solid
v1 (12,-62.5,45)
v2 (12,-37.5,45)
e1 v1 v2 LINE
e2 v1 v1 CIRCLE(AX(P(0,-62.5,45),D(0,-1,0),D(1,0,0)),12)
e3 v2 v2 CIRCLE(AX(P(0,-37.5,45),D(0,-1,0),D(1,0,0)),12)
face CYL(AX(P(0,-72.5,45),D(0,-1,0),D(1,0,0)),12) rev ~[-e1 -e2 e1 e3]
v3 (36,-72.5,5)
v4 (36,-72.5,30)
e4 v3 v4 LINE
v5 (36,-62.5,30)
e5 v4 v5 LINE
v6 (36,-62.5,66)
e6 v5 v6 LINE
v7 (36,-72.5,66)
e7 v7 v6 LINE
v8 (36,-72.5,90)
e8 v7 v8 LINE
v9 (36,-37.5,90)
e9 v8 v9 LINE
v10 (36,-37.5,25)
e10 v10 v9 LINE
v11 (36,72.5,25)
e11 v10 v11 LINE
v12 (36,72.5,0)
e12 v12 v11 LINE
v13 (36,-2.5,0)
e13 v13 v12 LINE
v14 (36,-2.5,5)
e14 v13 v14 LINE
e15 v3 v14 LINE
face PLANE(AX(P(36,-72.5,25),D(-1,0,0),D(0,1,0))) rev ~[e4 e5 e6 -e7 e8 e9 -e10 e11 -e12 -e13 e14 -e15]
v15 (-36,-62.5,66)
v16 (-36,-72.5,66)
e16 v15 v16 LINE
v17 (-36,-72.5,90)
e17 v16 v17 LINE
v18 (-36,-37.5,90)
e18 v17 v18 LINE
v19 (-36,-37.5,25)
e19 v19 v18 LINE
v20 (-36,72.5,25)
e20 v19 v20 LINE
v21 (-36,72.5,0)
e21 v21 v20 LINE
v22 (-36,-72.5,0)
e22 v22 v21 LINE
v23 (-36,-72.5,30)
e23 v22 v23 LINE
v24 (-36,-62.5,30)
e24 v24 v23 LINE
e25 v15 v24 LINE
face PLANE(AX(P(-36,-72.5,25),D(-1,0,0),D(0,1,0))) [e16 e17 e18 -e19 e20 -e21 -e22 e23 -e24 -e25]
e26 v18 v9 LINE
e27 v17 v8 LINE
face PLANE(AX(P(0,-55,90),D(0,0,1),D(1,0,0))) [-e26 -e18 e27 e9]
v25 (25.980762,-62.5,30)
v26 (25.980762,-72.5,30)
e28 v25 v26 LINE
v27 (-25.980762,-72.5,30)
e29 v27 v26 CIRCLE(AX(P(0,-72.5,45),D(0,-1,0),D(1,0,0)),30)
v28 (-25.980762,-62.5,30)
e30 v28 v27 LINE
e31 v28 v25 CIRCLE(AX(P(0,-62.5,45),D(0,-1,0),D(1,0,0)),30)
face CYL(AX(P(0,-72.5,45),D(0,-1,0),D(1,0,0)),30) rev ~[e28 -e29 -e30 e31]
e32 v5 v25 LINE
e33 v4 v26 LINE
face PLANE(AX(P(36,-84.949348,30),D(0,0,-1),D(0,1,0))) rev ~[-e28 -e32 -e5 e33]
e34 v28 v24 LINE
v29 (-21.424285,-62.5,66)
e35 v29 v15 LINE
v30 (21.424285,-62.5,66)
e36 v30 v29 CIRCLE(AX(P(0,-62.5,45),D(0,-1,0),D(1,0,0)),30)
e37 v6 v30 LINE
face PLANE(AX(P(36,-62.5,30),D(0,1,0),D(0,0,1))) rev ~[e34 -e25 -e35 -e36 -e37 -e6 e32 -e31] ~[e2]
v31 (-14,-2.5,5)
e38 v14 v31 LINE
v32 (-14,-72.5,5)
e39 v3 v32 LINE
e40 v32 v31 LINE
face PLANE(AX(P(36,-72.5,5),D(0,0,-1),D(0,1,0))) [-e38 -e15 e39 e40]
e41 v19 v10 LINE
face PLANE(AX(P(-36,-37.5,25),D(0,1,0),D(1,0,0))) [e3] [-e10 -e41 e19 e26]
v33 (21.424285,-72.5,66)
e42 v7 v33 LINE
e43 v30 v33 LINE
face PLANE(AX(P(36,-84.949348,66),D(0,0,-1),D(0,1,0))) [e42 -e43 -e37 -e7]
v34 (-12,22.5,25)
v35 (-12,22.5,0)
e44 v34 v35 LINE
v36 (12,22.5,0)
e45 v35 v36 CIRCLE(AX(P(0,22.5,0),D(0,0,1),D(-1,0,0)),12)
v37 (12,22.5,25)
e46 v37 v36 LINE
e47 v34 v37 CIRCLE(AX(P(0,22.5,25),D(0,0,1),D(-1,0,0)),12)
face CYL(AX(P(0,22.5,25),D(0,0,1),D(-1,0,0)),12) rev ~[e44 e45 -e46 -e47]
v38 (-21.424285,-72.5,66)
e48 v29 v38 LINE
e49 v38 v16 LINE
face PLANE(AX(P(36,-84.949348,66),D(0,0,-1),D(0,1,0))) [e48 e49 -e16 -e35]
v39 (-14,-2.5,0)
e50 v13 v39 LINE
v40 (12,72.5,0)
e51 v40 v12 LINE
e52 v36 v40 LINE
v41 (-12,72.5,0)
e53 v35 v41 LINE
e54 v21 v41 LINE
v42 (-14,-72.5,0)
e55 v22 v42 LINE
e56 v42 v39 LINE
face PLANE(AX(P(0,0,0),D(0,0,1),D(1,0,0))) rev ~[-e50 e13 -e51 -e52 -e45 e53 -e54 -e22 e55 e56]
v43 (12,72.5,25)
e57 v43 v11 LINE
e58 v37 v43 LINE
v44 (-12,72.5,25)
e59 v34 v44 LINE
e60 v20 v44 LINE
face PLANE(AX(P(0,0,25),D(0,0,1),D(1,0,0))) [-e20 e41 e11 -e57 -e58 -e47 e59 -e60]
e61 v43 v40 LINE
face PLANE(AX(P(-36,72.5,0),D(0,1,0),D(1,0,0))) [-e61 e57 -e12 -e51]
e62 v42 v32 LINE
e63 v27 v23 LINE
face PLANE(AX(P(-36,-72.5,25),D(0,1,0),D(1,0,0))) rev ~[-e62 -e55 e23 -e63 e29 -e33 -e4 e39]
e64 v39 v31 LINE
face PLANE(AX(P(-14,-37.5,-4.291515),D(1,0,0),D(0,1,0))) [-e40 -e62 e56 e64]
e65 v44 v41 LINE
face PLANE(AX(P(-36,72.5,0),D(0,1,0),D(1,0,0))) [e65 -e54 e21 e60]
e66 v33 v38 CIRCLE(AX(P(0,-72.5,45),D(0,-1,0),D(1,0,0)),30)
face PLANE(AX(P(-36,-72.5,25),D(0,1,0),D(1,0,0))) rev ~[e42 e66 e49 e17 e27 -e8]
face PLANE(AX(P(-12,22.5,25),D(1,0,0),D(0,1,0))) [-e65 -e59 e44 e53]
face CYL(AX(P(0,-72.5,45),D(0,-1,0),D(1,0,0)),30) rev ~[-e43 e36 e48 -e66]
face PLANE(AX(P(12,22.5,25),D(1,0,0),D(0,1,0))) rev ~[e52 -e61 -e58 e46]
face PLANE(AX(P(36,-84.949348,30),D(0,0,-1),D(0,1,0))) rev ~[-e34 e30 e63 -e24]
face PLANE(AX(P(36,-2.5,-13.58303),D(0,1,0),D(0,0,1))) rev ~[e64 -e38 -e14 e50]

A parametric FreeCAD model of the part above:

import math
import FreeCAD as App
import Part
import Sketcher

V = App.Vector
Q = App.Units.Quantity

doc = App.newDocument("Part")
body = doc.addObject("PartDesign::Body", "Body")

# Sketch on XY plane
sketch1 = doc.addObject("Sketcher::SketchObject", "Sketch")
body.addObject(sketch1)
sketch1.AttachmentSupport = (doc.XY_Plane, [""])
sketch1.MapMode = "FlatFace"
sketch1.addGeometry(Part.LineSegment(V(-36, 72, 0), V(-36, -72, 0)), False)
sketch1.addGeometry(Part.LineSegment(V(-36, -72, 0), V(36, -72, 0)), False)
sketch1.addGeometry(Part.LineSegment(V(36, -72, 0), V(36, 72, 0)), False)
sketch1.addGeometry(Part.LineSegment(V(36, 72, 0), V(-36, 72, 0)), False)
sketch1.addConstraint(Sketcher.Constraint("Coincident", 0, 2, 1, 1))
sketch1.addConstraint(Sketcher.Constraint("Coincident", 1, 2, 2, 1))
sketch1.addConstraint(Sketcher.Constraint("Coincident", 2, 2, 3, 1))
sketch1.addConstraint(Sketcher.Constraint("Coincident", 3, 2, 0, 1))
sketch1.addConstraint(Sketcher.Constraint("Vertical", 0))
sketch1.addConstraint(Sketcher.Constraint("Horizontal", 1))
sketch1.addConstraint(Sketcher.Constraint("Vertical", 2))
sketch1.addConstraint(Sketcher.Constraint("Horizontal", 3))
sketch1.addConstraint(Sketcher.Constraint("Symmetric", 0, 2, 2, 2, -1, 1))
sketch1.addConstraint(Sketcher.Constraint("DistanceX", 1, 1, 1, 2, Q("72 mm")))
sketch1.addConstraint(Sketcher.Constraint("DistanceY", 0, 2, 0, 1, Q("145 mm")))
pad1 = doc.addObject("PartDesign::Pad", "Pad")
body.addObject(pad1)
pad1.Profile = sketch1
pad1.Length = 25

# Sketch on XY plane
sketch2 = doc.addObject("Sketcher::SketchObject", "Sketch001")
body.addObject(sketch2)
sketch2.AttachmentSupport = (doc.XY_Plane, [""])
sketch2.MapMode = "FlatFace"
sketch2.AttachmentOffset = App.Placement(V(0, 0, 25), App.Rotation())
sketch2.addGeometry(Part.LineSegment(V(-36, -38, 0), V(-36, -72, 0)), False)
sketch2.addGeometry(Part.LineSegment(V(-36, -72, 0), V(36, -72, 0)), False)
sketch2.addGeometry(Part.LineSegment(V(36, -72, 0), V(36, -38, 0)), False)
sketch2.addGeometry(Part.LineSegment(V(36, -38, 0), V(-36, -38, 0)), False)
sketch2.addConstraint(Sketcher.Constraint("Coincident", 0, 2, 1, 1))
sketch2.addConstraint(Sketcher.Constraint("Coincident", 1, 2, 2, 1))
sketch2.addConstraint(Sketcher.Constraint("Coincident", 2, 2, 3, 1))
sketch2.addConstraint(Sketcher.Constraint("Coincident", 3, 2, 0, 1))
sketch2.addConstraint(Sketcher.Constraint("Vertical", 0))
sketch2.addConstraint(Sketcher.Constraint("Horizontal", 1))
sketch2.addConstraint(Sketcher.Constraint("Vertical", 2))
sketch2.addConstraint(Sketcher.Constraint("Horizontal", 3))
sketch2.addConstraint(Sketcher.Constraint("DistanceX", 1, 1, 1, 2, Q("72 mm")))
sketch2.addConstraint(Sketcher.Constraint("DistanceY", 0, 2, 0, 1, Q("35 mm")))
sketch2.addConstraint(Sketcher.Constraint("DistanceX", 0, 2, -1, 1, Q("36 mm")))
sketch2.addConstraint(Sketcher.Constraint("DistanceY", 0, 2, -1, 1, Q("72.5 mm")))
pad2 = doc.addObject("PartDesign::Pad", "Pad001")
body.addObject(pad2)
pad2.Profile = sketch2
pad2.Length = 65

# Sketch on YZ plane
sketch3 = doc.addObject("Sketcher::SketchObject", "Sketch002")
body.addObject(sketch3)
sketch3.AttachmentSupport = (doc.YZ_Plane, [""])
sketch3.MapMode = "FlatFace"
sketch3.AttachmentOffset = App.Placement(V(0, 0, 36), App.Rotation())
sketch3.addGeometry(Part.LineSegment(V(-72, 5, 0), V(-72, -14, 0)), False)
sketch3.addGeometry(Part.LineSegment(V(-72, -14, 0), V(-2, -14, 0)), False)
sketch3.addGeometry(Part.LineSegment(V(-2, -14, 0), V(-2, 5, 0)), False)
sketch3.addGeometry(Part.LineSegment(V(-2, 5, 0), V(-72, 5, 0)), False)
sketch3.addConstraint(Sketcher.Constraint("Coincident", 0, 2, 1, 1))
sketch3.addConstraint(Sketcher.Constraint("Coincident", 1, 2, 2, 1))
sketch3.addConstraint(Sketcher.Constraint("Coincident", 2, 2, 3, 1))
sketch3.addConstraint(Sketcher.Constraint("Coincident", 3, 2, 0, 1))
sketch3.addConstraint(Sketcher.Constraint("Vertical", 0))
sketch3.addConstraint(Sketcher.Constraint("Horizontal", 1))
sketch3.addConstraint(Sketcher.Constraint("Vertical", 2))
sketch3.addConstraint(Sketcher.Constraint("Horizontal", 3))
sketch3.addConstraint(Sketcher.Constraint("DistanceX", 1, 1, 1, 2, Q("70 mm")))
sketch3.addConstraint(Sketcher.Constraint("DistanceY", -1, 1, 2, 2, Q("5 mm")))
sketch3.addConstraint(Sketcher.Constraint("DistanceX", 0, 2, -1, 1, Q("72.5 mm")))
sketch3.addConstraint(Sketcher.Constraint("DistanceY", 0, 2, 0, 1, Q("18.58303 mm")))
pocket1 = doc.addObject("PartDesign::Pocket", "Pocket")
body.addObject(pocket1)
pocket1.Profile = sketch3
pocket1.Length = 50

# Sketch on XY plane
sketch4 = doc.addObject("Sketcher::SketchObject", "Sketch003")
body.addObject(sketch4)
sketch4.AttachmentSupport = (doc.XY_Plane, [""])
sketch4.MapMode = "FlatFace"
sketch4.AttachmentOffset = App.Placement(V(0, 0, 25), App.Rotation())
sketch4.addGeometry(Part.ArcOfCircle(Part.Circle(V(0, 22, 0), V(0, 0, 1), 12), math.radians(180), math.radians(360)), False)
sketch4.addGeometry(Part.LineSegment(V(12, 22, 0), V(12, 76, 0)), False)
sketch4.addGeometry(Part.ArcOfCircle(Part.Circle(V(0, 76, 0), V(0, 0, 1), 12), math.radians(0), math.radians(180)), False)
sketch4.addGeometry(Part.LineSegment(V(-12, 76, 0), V(-12, 22, 0)), False)
sketch4.addConstraint(Sketcher.Constraint("Tangent", 0, 2, 1, 1))
sketch4.addConstraint(Sketcher.Constraint("Tangent", 1, 2, 2, 1))
sketch4.addConstraint(Sketcher.Constraint("Tangent", 2, 2, 3, 1))
sketch4.addConstraint(Sketcher.Constraint("Tangent", 3, 2, 0, 1))
sketch4.addConstraint(Sketcher.Constraint("Vertical", 1))
sketch4.addConstraint(Sketcher.Constraint("Vertical", 3))
sketch4.addConstraint(Sketcher.Constraint("PointOnObject", 0, 3, -2))
sketch4.addConstraint(Sketcher.Constraint("Radius", 0, Q("12 mm")))
sketch4.addConstraint(Sketcher.Constraint("DistanceY", -1, 1, 0, 3, Q("22.5 mm")))
sketch4.addConstraint(Sketcher.Constraint("DistanceY", 1, 1, 1, 2, Q("53.323228 mm")))
pocket2 = doc.addObject("PartDesign::Pocket", "Pocket001")
body.addObject(pocket2)
pocket2.Profile = sketch4
pocket2.Type = "ThroughAll"

# Sketch on XZ plane
sketch5 = doc.addObject("Sketcher::SketchObject", "Sketch004")
body.addObject(sketch5)
sketch5.AttachmentSupport = (doc.XZ_Plane, [""])
sketch5.MapMode = "FlatFace"
sketch5.AttachmentOffset = App.Placement(V(0, 0, 72.5), App.Rotation())
sketch5.addGeometry(Part.Circle(V(0, 45, 0), V(0, 0, 1), 12), False)
sketch5.addConstraint(Sketcher.Constraint("PointOnObject", 0, 3, -2))
sketch5.addConstraint(Sketcher.Constraint("Diameter", 0, Q("24 mm")))
sketch5.addConstraint(Sketcher.Constraint("DistanceY", -1, 1, 0, 3, Q("45 mm")))
pocket3 = doc.addObject("PartDesign::Pocket", "Pocket002")
body.addObject(pocket3)
pocket3.Profile = sketch5
pocket3.Type = "ThroughAll"

# Sketch on XZ plane
sketch6 = doc.addObject("Sketcher::SketchObject", "Sketch005")
body.addObject(sketch6)
sketch6.AttachmentSupport = (doc.XZ_Plane, [""])
sketch6.MapMode = "FlatFace"
sketch6.AttachmentOffset = App.Placement(V(0, 0, 72.5), App.Rotation())
sketch6.addGeometry(Part.Circle(V(0, 45, 0), V(0, 0, 1), 30), False)
sketch6.addConstraint(Sketcher.Constraint("PointOnObject", 0, 3, -2))
sketch6.addConstraint(Sketcher.Constraint("Diameter", 0, Q("60 mm")))
sketch6.addConstraint(Sketcher.Constraint("DistanceY", -1, 1, 0, 3, Q("45 mm")))
pocket4 = doc.addObject("PartDesign::Pocket", "Pocket003")
body.addObject(pocket4)
pocket4.Profile = sketch6
pocket4.Length = 10

# Sketch on YZ plane
sketch7 = doc.addObject("Sketcher::SketchObject", "Sketch006")
body.addObject(sketch7)
sketch7.AttachmentSupport = (doc.YZ_Plane, [""])
sketch7.MapMode = "FlatFace"
sketch7.AttachmentOffset = App.Placement(V(0, 0, 36), App.Rotation())
sketch7.addGeometry(Part.LineSegment(V(-85, 66, 0), V(-85, 30, 0)), False)
sketch7.addGeometry(Part.LineSegment(V(-85, 30, 0), V(-62, 30, 0)), False)
sketch7.addGeometry(Part.LineSegment(V(-62, 30, 0), V(-62, 66, 0)), False)
sketch7.addGeometry(Part.LineSegment(V(-62, 66, 0), V(-85, 66, 0)), False)
sketch7.addConstraint(Sketcher.Constraint("Coincident", 0, 2, 1, 1))
sketch7.addConstraint(Sketcher.Constraint("Coincident", 1, 2, 2, 1))
sketch7.addConstraint(Sketcher.Constraint("Coincident", 2, 2, 3, 1))
sketch7.addConstraint(Sketcher.Constraint("Coincident", 3, 2, 0, 1))
sketch7.addConstraint(Sketcher.Constraint("Vertical", 0))
sketch7.addConstraint(Sketcher.Constraint("Horizontal", 1))
sketch7.addConstraint(Sketcher.Constraint("Vertical", 2))
sketch7.addConstraint(Sketcher.Constraint("Horizontal", 3))
sketch7.addConstraint(Sketcher.Constraint("DistanceY", 0, 2, 0, 1, Q("36 mm")))
sketch7.addConstraint(Sketcher.Constraint("DistanceY", -1, 1, 0, 2, Q("30 mm")))
sketch7.addConstraint(Sketcher.Constraint("DistanceX", 1, 2, -1, 1, Q("62.5 mm")))
sketch7.addConstraint(Sketcher.Constraint("DistanceX", 1, 1, 1, 2, Q("22.449348 mm")))
pocket5 = doc.addObject("PartDesign::Pocket", "Pocket004")
body.addObject(pocket5)
pocket5.Profile = sketch7
pocket5.Type = "ThroughAll"

doc.recompute()
